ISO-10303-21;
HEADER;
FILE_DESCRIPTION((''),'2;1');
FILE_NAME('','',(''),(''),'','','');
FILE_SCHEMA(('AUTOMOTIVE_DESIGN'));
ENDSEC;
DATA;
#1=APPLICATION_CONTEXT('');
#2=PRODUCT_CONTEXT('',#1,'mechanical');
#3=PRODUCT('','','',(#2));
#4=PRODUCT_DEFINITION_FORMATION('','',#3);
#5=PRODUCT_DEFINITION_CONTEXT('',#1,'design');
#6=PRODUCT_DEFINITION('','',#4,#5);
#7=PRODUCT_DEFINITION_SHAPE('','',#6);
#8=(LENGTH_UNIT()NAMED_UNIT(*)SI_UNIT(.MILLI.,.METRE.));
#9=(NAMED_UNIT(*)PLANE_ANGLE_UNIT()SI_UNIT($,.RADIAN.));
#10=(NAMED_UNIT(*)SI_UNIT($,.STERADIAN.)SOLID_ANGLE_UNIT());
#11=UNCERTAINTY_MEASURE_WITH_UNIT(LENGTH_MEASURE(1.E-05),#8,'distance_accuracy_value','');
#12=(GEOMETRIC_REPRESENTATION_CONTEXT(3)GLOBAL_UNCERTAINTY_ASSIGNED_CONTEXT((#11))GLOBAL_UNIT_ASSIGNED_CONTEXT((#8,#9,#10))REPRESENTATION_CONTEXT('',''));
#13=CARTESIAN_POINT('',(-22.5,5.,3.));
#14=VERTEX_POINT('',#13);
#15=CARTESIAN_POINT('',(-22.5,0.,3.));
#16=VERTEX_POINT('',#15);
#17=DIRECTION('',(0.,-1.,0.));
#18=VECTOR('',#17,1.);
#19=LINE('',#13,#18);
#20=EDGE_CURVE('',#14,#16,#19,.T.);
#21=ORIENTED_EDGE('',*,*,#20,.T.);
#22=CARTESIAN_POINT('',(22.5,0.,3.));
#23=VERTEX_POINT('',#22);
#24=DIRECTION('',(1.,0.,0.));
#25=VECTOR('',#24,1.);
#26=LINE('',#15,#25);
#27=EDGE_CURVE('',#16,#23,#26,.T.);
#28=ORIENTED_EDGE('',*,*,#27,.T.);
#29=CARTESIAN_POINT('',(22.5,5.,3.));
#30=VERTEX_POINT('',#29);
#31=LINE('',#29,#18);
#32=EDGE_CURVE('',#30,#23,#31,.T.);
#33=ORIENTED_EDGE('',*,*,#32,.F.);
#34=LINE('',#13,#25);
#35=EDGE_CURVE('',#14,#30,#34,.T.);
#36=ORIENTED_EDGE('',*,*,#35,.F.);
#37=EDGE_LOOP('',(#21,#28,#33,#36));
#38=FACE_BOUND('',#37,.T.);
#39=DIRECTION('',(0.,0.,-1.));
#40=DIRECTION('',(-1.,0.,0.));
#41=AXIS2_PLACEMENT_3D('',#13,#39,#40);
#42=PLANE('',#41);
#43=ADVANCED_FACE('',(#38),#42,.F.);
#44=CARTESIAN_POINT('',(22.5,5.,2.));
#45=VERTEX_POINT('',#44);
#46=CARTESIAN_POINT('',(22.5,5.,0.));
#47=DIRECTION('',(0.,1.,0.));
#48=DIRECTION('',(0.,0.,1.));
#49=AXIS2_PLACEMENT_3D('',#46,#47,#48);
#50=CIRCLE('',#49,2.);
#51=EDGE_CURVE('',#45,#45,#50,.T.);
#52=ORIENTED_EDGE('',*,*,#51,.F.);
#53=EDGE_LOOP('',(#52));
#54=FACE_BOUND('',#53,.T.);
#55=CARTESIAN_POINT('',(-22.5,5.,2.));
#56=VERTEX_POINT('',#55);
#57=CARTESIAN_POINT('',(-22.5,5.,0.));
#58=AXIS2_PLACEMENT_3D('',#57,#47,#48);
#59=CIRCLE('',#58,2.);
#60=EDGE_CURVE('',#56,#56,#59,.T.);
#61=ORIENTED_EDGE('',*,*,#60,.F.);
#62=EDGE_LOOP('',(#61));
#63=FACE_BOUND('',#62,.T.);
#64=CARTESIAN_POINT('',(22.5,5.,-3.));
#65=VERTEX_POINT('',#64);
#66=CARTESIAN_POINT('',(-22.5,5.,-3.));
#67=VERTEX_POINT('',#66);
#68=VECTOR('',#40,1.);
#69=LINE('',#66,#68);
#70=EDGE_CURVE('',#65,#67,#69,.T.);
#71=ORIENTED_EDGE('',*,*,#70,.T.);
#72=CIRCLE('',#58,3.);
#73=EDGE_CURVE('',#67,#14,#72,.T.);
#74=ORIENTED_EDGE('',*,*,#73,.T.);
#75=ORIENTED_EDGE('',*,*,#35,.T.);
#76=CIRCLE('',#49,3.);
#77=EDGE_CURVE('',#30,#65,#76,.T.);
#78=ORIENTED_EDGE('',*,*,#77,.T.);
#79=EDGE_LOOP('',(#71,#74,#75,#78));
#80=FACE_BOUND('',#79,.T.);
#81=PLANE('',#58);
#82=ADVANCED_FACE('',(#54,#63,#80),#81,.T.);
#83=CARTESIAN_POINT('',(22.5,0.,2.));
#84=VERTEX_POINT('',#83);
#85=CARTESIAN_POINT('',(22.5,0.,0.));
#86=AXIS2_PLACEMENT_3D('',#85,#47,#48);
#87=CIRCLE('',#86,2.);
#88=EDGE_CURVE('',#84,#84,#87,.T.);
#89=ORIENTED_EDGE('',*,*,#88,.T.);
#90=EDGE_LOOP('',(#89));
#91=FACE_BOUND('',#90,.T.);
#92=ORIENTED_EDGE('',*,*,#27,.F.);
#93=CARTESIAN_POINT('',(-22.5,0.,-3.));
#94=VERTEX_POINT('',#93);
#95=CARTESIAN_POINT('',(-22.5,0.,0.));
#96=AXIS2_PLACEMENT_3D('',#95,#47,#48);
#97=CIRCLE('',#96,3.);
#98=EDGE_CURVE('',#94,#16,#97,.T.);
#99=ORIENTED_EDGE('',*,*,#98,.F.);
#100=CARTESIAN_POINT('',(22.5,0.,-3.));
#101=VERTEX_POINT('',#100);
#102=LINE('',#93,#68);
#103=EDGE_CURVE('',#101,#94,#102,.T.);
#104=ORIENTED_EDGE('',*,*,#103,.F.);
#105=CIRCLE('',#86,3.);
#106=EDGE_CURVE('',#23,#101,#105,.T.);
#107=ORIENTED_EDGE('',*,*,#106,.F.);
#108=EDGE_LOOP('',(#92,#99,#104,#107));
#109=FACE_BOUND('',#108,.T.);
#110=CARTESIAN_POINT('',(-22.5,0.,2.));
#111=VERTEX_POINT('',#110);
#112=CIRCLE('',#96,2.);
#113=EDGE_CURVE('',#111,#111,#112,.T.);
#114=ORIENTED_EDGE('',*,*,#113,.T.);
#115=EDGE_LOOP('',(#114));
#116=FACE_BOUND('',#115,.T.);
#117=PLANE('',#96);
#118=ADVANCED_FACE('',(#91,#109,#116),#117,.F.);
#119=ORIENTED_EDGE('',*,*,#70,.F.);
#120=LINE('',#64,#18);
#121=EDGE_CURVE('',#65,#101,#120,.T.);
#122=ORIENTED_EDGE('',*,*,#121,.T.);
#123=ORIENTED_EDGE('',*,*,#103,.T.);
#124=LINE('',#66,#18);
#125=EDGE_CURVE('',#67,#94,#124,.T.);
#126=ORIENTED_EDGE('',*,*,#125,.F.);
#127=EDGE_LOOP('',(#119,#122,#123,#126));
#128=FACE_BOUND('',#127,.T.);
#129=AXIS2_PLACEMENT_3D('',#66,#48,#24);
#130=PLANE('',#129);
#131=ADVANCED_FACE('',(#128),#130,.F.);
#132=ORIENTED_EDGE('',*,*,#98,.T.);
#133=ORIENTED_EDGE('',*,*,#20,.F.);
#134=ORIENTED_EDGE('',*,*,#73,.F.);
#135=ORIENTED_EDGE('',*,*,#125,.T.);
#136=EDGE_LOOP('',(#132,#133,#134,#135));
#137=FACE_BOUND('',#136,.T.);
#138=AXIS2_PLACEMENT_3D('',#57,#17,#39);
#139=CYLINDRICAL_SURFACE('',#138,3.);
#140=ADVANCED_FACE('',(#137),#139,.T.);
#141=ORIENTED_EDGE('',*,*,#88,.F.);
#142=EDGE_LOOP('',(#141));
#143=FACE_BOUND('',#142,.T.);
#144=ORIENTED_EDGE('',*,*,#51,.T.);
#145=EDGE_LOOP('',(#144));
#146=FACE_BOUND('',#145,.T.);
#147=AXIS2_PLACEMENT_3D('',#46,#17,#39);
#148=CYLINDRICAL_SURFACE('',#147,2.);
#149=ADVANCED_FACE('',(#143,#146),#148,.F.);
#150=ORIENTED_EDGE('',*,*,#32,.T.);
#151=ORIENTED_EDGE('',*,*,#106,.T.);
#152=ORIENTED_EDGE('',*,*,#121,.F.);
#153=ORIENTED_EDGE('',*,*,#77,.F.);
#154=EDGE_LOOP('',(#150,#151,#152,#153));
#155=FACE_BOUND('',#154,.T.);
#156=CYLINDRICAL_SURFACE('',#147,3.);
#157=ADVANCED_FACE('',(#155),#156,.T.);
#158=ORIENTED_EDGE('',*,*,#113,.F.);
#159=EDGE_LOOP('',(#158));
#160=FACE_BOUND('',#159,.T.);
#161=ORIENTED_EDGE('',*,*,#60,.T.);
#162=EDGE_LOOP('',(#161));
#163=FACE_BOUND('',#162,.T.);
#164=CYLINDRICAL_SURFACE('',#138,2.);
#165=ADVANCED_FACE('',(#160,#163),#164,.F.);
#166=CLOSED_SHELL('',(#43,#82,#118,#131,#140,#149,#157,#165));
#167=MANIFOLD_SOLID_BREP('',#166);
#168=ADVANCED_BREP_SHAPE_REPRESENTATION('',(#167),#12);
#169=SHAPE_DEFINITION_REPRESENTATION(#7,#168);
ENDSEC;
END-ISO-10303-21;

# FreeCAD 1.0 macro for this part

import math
import FreeCAD as App
import Part
import Sketcher
Q = App.Units.Quantity

doc = App.newDocument("Part")
body = doc.addObject("PartDesign::Body", "Body")

# Sketch on XZ plane
sketch1 = body.newObject("Sketcher::SketchObject", "Sketch")
sketch1.AttachmentSupport = (doc.getObject("XZ_Plane"), [""])
sketch1.MapMode = "FlatFace"
sketch1.addGeometry([
    Part.LineSegment(App.Vector(22.5, -3, 0), App.Vector(-22.5, -3, 0)),  # 0
    Part.ArcOfCircle(Part.Circle(App.Vector(-22.5, 0, 0), App.Vector(0, 0, 1), 3), math.radians(90), math.radians(270)),  # 1
    Part.LineSegment(App.Vector(-22.5, 3, 0), App.Vector(22.5, 3, 0)),  # 2
    Part.ArcOfCircle(Part.Circle(App.Vector(22.5, 0, 0), App.Vector(0, 0, 1), 3), math.radians(-90), math.radians(90)),  # 3
    Part.Circle(App.Vector(22.5, 0, 0), App.Vector(0, 0, 1), 2),  # 4
    Part.Circle(App.Vector(-22.5, 0, 0), App.Vector(0, 0, 1), 2),  # 5
], False)
sketch1.addConstraint([
    Sketcher.Constraint("Tangent", 0, 2, 1, 2),
    Sketcher.Constraint("Tangent", 1, 1, 2, 1),
    Sketcher.Constraint("Tangent", 2, 2, 3, 2),
    Sketcher.Constraint("Tangent", 3, 1, 0, 1),
    Sketcher.Constraint("Horizontal", 0),
    Sketcher.Constraint("Horizontal", 2),
    Sketcher.Constraint("Coincident", 4, 3, 3, 3),
    Sketcher.Constraint("Coincident", 5, 3, 1, 3),
    Sketcher.Constraint("Equal", 4, 5),
    Sketcher.Constraint("Symmetric", 1, 3, 3, 3, -1, 1),
    Sketcher.Constraint("Diameter", 4, Q("4 mm")),
    Sketcher.Constraint("Radius", 1, Q("3 mm")),
    Sketcher.Constraint("DistanceX", 0, 2, 0, 1, Q("45 mm")),
])
pad1 = body.newObject("PartDesign::Pad", "Pad")
pad1.Profile = sketch1
pad1.Length = 5
pad1.Reversed = True

doc.recompute()
